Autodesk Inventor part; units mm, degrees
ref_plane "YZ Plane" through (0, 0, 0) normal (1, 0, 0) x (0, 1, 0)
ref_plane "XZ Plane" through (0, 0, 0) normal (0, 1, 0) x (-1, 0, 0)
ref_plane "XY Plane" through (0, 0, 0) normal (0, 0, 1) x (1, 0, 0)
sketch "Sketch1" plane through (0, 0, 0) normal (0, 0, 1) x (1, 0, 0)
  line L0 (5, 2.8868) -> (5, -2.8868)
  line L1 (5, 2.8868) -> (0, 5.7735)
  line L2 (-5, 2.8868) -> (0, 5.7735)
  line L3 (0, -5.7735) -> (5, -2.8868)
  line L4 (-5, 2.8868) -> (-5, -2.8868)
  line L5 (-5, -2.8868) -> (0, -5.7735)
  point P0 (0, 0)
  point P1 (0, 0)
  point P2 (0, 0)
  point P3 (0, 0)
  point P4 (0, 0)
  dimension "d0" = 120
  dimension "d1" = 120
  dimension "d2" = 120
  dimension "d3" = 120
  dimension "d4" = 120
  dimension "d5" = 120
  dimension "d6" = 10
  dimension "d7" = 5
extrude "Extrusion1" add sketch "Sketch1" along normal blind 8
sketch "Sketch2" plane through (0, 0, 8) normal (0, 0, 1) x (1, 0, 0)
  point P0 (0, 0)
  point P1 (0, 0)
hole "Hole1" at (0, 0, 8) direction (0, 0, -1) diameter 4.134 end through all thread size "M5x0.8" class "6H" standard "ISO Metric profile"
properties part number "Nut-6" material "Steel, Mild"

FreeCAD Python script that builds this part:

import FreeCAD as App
import Part
import Sketcher

V = App.Vector
Q = App.Units.Quantity


def add_polygon(sketch, points):
    """Adds a closed chain of lines whose ends are joined by coincident constraints."""
    first, n = sketch.GeometryCount, len(points)
    for a, b in zip(points, points[1:] + points[:1]):
        sketch.addGeometry(Part.LineSegment(App.Vector(*a, 0), App.Vector(*b, 0)), False)
    for i in range(n):
        sketch.addConstraint(Sketcher.Constraint("Coincident", first + i, 2, first + (i + 1) % n, 1))

doc = App.newDocument("Part")
body = doc.addObject("PartDesign::Body", "Body")

# Sketch on XY plane
sketch1 = doc.addObject("Sketcher::SketchObject", "Sketch")
body.addObject(sketch1)
sketch1.AttachmentSupport = (doc.XY_Plane, [""])
sketch1.MapMode = "FlatFace"
add_polygon(sketch1, [(5, -2.8868), (5, 2.8868), (0, 5.7735), (-5, 2.8868), (-5, -2.8868), (0, -5.7735)])  # lines 0-5
sketch1.addConstraint([
    Sketcher.Constraint("Vertical", 0),
    Sketcher.Constraint("Vertical", 3),
    Sketcher.Constraint("Symmetric", 0, 2, 3, 2, -1, 1),
    Sketcher.Constraint("Symmetric", 1, 2, 4, 2, -1, 1),
    Sketcher.Constraint("PointOnObject", 1, 2, -2),
    Sketcher.Constraint("Parallel", 2, 5),
    Sketcher.Constraint("Horizontal", 0, 2, 2, 2),
    Sketcher.Constraint("DistanceX", -1, 1, 0, 2, Q("5 mm")),
    Sketcher.Constraint("Angle", 1, Q("150.0004 deg")),
    Sketcher.Constraint("DistanceY", 0, 1, 0, 2, Q("5.7736 mm")),
])
pad1 = doc.addObject("PartDesign::Pad", "Pad")
body.addObject(pad1)
pad1.Profile = sketch1
pad1.Length = 8

# Sketch on XY plane
sketch2 = doc.addObject("Sketcher::SketchObject", "Sketch001")
body.addObject(sketch2)
sketch2.AttachmentSupport = (doc.XY_Plane, [""])
sketch2.MapMode = "FlatFace"
sketch2.AttachmentOffset = App.Placement(V(0, 0, 8), App.Rotation())
sketch2.addGeometry(Part.Circle(V(0, 0, 0), V(0, 0, 1), 2.067), False)
sketch2.addConstraint([
    Sketcher.Constraint("Coincident", 0, 3, -1, 1),
    Sketcher.Constraint("Diameter", 0, Q("4.134 mm")),
])
doc.recompute()
hole = doc.addObject("PartDesign::Hole", "Hole")
body.addObject(hole)
hole.Profile = sketch2
hole.ThreadType = "None"
hole.Diameter = 4.134
hole.DepthType = "ThroughAll"

doc.recompute()
